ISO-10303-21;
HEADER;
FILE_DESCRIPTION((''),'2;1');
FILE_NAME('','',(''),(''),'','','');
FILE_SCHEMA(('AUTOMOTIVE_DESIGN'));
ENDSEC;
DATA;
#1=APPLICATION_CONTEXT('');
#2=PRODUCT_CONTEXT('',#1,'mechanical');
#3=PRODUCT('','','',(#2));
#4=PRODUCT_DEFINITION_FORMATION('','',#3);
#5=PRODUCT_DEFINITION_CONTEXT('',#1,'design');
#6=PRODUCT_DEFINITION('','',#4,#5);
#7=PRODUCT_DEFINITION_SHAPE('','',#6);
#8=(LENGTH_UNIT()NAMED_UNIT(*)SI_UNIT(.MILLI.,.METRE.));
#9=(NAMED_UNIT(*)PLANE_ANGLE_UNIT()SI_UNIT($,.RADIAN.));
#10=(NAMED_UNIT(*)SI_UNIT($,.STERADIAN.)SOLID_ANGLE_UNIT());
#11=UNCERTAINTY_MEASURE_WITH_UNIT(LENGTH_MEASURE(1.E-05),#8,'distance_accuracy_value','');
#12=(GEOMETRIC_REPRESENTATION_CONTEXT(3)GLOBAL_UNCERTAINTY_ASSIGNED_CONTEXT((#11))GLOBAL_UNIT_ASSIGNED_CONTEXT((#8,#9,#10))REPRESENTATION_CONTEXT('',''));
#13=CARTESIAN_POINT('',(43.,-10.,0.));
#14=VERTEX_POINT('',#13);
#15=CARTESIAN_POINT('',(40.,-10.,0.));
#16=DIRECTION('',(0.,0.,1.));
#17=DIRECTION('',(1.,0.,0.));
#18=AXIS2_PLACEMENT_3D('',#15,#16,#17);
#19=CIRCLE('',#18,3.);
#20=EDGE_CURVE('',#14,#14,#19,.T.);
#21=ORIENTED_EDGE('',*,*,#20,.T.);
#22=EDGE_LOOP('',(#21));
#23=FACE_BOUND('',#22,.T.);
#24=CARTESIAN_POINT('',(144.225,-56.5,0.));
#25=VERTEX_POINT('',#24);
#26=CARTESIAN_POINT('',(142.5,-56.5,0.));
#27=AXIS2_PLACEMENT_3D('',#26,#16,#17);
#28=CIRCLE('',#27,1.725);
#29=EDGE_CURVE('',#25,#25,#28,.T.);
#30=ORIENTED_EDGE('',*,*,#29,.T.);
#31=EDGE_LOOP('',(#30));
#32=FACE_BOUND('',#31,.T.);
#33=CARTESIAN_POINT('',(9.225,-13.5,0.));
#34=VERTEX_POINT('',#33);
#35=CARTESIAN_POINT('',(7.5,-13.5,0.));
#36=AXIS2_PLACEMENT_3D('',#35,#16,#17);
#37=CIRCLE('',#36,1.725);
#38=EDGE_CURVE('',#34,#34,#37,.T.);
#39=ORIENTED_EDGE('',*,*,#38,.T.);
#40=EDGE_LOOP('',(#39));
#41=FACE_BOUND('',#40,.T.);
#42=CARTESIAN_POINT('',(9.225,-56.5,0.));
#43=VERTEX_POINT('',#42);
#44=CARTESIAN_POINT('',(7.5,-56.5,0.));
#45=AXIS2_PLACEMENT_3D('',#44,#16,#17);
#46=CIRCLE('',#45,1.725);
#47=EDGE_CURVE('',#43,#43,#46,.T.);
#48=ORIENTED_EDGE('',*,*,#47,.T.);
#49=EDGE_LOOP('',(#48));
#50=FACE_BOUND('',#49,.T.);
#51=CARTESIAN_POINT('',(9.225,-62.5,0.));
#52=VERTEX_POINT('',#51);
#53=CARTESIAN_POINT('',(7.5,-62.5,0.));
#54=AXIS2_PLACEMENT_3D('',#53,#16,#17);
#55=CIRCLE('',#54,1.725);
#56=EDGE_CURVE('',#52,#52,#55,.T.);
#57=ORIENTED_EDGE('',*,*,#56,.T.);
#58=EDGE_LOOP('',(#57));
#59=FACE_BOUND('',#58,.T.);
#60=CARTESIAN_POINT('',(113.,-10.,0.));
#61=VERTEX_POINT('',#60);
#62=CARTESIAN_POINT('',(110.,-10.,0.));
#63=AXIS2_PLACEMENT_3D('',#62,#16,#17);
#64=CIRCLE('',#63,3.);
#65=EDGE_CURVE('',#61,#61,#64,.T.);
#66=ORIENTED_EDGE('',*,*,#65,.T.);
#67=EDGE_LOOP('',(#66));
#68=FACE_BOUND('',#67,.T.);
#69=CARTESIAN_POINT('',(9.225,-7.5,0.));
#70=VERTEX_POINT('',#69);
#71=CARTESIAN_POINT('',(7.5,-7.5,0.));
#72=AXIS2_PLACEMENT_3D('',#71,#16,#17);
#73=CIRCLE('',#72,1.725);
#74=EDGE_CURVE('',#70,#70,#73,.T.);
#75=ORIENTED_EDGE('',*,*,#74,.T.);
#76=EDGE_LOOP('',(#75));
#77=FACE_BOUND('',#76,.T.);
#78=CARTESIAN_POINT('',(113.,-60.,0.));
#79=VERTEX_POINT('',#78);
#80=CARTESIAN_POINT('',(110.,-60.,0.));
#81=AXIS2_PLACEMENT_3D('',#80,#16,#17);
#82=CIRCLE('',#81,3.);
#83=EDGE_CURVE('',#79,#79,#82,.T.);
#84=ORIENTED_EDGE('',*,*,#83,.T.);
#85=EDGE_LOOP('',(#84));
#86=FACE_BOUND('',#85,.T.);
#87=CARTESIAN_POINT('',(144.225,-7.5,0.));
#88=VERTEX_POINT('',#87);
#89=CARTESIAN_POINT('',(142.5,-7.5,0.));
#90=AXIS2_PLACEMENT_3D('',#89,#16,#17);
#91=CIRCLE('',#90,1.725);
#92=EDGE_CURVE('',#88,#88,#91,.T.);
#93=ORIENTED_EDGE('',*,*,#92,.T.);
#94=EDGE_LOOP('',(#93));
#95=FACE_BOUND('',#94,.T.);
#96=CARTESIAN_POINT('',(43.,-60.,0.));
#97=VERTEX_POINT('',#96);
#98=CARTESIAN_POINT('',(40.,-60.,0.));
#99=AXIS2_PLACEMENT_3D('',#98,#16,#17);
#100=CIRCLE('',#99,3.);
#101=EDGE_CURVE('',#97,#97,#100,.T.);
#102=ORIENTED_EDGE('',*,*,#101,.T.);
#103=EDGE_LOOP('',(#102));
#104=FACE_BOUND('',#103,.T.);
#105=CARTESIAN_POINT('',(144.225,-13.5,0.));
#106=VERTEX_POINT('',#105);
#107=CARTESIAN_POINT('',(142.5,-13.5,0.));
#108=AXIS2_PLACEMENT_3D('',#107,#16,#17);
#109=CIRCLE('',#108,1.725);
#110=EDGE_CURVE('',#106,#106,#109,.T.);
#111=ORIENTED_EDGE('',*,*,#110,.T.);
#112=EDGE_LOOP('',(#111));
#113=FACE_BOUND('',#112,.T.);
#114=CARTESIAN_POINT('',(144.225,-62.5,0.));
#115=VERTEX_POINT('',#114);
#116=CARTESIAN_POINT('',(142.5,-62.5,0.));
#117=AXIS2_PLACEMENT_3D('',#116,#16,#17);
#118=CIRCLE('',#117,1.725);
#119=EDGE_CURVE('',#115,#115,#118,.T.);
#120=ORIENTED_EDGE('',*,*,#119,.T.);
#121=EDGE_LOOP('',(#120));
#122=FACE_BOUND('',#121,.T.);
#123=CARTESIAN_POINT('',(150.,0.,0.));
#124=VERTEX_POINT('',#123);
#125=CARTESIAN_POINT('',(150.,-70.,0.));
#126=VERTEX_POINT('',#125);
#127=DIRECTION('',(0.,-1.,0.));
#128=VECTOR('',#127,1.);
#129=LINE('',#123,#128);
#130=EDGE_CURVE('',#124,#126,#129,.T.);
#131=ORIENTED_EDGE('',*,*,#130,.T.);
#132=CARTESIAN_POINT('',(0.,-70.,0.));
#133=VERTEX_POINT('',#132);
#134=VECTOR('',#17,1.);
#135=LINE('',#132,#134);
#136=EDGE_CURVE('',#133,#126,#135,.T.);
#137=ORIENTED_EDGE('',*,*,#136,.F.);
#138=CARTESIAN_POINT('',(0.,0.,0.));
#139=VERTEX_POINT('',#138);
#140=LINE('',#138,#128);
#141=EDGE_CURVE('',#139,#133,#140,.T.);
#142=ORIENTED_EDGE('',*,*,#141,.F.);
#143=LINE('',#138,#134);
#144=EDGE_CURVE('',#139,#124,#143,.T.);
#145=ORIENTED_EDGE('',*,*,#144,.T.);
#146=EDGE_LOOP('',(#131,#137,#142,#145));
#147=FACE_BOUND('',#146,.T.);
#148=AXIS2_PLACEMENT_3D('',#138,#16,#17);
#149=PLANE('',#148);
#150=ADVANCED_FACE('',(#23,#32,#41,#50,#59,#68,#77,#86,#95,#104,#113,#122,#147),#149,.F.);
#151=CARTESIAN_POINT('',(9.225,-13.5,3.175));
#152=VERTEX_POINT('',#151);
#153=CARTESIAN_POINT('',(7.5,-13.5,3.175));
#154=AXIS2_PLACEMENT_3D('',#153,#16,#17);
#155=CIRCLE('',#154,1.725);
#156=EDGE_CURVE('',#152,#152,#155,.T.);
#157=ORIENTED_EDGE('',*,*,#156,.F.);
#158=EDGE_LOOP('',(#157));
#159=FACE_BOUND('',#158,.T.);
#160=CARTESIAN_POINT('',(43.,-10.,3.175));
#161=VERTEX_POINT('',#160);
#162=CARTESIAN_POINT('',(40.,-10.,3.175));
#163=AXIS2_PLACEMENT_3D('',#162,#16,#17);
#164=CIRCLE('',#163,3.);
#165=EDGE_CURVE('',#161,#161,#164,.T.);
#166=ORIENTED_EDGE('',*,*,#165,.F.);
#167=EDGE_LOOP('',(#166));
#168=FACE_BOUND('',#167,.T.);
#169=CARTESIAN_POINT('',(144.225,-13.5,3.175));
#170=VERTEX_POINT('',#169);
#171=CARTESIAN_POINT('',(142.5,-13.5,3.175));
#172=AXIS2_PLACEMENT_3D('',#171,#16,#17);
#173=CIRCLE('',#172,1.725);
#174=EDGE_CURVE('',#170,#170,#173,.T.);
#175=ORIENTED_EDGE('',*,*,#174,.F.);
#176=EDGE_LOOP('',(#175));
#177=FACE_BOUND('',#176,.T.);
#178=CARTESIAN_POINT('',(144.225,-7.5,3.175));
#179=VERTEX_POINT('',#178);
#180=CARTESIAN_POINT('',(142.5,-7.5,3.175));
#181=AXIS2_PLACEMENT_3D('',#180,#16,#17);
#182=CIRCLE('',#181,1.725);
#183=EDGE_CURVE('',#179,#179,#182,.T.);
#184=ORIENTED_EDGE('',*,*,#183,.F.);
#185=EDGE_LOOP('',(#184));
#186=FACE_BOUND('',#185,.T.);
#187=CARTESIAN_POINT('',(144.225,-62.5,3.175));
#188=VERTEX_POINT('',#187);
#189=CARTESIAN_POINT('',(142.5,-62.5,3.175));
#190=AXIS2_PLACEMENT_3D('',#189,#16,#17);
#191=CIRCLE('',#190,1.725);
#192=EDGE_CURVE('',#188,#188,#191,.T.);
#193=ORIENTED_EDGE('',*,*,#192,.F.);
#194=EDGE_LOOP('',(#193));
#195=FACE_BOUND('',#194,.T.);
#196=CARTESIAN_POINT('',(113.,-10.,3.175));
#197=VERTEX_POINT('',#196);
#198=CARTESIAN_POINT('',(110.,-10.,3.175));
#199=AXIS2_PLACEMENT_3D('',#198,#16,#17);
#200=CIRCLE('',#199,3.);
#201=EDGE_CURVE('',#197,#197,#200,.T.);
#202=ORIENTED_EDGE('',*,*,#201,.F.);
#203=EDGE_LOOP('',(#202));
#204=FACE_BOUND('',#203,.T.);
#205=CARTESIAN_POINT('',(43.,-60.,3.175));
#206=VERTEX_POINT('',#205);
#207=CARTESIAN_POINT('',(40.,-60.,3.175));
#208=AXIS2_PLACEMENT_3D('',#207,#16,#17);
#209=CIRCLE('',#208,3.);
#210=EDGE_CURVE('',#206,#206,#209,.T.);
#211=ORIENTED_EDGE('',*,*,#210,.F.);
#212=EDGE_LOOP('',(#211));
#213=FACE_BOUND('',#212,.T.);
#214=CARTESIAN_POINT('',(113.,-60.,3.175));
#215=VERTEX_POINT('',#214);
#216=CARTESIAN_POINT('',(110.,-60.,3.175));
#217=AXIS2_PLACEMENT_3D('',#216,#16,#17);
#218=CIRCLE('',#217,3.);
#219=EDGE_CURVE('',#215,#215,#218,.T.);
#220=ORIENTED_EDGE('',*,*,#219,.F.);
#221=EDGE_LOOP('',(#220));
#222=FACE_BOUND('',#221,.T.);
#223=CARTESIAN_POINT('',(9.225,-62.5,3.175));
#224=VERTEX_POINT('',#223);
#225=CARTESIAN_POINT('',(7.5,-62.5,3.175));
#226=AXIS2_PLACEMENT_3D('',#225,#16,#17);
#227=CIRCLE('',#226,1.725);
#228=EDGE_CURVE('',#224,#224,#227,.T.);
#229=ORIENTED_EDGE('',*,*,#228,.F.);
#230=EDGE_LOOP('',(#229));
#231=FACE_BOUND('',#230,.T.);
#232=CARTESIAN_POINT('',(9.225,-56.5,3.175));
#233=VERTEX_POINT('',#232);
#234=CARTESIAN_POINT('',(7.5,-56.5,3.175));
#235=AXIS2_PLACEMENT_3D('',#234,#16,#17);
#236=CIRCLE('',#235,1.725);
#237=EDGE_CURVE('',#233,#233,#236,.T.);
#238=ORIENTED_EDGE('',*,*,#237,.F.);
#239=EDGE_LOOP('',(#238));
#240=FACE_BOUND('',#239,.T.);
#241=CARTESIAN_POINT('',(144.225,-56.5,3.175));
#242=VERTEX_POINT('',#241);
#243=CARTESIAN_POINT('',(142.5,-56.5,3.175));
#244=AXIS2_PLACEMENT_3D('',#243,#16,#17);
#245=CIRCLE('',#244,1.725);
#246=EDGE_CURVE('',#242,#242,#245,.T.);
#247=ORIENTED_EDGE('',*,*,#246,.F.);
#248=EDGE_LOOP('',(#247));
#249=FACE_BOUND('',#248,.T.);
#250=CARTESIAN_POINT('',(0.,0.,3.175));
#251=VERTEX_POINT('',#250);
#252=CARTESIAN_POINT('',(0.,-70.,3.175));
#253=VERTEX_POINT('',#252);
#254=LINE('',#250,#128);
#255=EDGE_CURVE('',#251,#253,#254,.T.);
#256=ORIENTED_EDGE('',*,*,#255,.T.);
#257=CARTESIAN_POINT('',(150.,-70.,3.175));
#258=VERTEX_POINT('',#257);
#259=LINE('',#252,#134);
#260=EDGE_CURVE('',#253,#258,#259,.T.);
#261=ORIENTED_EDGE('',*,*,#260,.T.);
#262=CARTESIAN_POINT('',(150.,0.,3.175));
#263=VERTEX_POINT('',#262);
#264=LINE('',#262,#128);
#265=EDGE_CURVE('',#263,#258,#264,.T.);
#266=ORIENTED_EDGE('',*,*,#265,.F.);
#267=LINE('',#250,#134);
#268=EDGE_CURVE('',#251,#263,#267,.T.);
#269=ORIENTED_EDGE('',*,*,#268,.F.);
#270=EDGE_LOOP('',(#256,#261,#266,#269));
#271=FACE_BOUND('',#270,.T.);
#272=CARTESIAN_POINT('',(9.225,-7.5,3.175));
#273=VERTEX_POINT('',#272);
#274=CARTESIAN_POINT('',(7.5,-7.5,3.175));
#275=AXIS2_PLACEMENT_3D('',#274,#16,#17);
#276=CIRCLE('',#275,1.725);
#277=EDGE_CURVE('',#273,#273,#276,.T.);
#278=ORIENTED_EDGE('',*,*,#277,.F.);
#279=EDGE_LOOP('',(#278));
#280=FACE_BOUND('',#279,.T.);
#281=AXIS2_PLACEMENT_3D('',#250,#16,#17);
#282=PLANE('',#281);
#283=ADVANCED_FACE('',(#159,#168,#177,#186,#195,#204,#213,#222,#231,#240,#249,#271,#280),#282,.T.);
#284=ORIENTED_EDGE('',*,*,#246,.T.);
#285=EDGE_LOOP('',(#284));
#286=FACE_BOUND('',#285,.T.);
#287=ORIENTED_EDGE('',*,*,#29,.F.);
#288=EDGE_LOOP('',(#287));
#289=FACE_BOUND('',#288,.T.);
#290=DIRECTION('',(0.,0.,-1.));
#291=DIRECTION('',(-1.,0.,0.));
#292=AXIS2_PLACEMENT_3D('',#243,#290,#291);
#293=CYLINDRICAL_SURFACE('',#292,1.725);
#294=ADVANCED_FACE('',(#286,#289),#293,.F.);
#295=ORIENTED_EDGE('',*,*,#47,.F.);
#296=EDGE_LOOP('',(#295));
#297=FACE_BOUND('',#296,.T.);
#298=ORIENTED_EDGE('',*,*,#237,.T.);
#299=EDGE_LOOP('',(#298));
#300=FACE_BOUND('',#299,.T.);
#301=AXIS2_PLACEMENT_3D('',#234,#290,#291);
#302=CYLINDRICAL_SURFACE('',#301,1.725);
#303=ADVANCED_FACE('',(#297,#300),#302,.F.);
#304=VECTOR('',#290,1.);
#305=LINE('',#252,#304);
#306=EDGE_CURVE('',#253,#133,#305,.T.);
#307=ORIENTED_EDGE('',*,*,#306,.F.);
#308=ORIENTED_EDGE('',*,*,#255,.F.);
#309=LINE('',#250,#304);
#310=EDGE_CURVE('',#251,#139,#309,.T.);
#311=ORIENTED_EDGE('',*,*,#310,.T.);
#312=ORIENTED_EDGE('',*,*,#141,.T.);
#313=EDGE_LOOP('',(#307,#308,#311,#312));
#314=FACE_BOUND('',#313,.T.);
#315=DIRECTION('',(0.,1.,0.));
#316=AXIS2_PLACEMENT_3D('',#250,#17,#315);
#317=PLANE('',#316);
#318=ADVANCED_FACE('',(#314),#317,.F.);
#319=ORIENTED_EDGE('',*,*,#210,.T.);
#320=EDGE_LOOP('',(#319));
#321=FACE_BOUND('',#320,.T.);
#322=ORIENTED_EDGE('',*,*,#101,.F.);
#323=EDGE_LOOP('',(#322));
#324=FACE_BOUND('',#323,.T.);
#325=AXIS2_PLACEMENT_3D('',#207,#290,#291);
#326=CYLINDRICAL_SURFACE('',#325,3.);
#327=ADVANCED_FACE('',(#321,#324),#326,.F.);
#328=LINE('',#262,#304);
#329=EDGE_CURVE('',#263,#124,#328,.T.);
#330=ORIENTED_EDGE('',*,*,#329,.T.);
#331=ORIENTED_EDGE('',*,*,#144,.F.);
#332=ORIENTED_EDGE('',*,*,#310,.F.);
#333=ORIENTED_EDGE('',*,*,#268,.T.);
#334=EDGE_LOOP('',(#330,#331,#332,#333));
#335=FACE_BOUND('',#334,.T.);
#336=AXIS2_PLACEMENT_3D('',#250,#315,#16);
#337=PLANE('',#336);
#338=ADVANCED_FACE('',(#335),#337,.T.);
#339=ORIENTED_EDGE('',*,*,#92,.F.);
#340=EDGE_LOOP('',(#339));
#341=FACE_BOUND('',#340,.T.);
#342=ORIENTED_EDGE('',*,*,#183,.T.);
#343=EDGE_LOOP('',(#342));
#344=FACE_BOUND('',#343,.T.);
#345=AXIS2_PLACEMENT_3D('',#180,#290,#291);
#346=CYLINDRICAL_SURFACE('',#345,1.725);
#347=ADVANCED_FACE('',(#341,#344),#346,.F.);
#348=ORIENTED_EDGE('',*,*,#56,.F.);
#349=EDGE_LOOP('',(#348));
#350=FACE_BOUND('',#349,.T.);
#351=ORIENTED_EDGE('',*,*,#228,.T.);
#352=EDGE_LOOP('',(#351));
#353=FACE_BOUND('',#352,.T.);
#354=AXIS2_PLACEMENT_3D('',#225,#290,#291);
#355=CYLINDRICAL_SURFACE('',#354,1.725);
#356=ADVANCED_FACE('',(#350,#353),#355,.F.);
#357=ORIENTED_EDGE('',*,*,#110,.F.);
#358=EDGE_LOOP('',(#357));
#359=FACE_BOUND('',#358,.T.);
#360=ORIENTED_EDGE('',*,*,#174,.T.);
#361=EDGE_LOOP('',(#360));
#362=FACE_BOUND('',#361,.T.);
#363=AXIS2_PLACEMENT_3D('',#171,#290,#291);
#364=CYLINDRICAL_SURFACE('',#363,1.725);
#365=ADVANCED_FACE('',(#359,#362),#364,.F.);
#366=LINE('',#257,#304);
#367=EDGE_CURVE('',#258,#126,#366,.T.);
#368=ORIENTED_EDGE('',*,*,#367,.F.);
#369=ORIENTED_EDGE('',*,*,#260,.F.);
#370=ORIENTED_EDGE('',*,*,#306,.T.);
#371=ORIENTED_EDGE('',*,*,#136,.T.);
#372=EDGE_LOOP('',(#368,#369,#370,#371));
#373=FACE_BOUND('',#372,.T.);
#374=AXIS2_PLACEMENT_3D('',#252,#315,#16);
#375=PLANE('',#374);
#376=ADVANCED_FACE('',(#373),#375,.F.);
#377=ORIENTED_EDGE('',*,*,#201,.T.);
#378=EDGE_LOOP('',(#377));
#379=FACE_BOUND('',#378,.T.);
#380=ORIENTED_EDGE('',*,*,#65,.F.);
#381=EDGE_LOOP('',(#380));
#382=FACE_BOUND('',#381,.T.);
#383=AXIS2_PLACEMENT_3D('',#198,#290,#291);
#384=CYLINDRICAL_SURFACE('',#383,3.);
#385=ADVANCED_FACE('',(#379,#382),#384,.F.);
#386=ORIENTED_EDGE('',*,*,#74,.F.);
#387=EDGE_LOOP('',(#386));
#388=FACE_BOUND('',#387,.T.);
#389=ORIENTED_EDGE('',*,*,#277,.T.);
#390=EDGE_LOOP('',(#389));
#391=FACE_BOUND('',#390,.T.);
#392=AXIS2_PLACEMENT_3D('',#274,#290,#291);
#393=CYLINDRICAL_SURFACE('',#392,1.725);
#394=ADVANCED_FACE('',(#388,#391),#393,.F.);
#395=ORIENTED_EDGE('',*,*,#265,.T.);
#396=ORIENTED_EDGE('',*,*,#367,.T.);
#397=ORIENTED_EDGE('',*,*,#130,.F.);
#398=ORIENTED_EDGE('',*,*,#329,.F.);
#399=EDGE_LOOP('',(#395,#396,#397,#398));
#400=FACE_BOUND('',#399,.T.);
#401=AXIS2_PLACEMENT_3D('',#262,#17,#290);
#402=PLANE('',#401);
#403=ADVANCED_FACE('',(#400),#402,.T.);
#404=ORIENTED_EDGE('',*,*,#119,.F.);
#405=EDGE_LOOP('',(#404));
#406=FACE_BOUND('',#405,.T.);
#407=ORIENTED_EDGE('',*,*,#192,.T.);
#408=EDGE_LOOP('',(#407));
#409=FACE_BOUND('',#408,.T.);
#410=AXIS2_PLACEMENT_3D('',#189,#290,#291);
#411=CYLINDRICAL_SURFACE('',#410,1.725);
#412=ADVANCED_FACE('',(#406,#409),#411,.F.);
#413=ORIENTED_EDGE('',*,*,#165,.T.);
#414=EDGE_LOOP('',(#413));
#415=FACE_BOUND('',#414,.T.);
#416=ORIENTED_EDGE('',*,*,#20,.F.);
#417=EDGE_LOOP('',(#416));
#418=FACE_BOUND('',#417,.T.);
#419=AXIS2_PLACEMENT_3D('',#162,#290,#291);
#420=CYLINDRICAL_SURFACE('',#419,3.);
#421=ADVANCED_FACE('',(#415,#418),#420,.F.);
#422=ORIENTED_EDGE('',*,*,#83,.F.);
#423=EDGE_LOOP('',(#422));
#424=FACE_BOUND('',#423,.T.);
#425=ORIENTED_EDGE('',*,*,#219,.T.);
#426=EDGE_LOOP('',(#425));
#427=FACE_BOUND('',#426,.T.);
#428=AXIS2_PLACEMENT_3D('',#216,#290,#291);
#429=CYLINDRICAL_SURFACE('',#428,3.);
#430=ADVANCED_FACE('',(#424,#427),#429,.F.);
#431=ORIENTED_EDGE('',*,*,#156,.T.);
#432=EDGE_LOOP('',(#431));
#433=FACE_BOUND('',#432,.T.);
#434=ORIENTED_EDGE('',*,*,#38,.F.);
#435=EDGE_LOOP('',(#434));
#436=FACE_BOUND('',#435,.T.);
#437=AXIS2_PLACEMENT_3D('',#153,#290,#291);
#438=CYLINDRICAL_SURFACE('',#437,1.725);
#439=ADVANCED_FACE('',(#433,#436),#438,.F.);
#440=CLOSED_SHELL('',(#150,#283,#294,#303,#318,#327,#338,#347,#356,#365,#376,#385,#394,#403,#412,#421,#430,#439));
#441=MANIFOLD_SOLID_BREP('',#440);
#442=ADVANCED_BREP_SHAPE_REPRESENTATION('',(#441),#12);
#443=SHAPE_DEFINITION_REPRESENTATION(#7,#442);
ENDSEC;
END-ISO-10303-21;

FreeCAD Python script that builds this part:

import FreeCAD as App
import Part
import Sketcher

V = App.Vector
Q = App.Units.Quantity

doc = App.newDocument("Part")
body = doc.addObject("PartDesign::Body", "Body")

# Sketch on XY plane
sketch1 = body.newObject("Sketcher::SketchObject", "Sketch")
sketch1.AttachmentSupport = (doc.getObject("XY_Plane"), [""])
sketch1.MapMode = "FlatFace"
sketch1.addGeometry([
    Part.LineSegment(V(0, 0, 0), V(0, -70, 0)),  # 0
    Part.LineSegment(V(0, -70, 0), V(150, -70, 0)),  # 1
    Part.LineSegment(V(150, -70, 0), V(150, 0, 0)),  # 2
    Part.LineSegment(V(150, 0, 0), V(0, 0, 0)),  # 3
    Part.Circle(V(7.5, -62.5, 0), V(0, 0, 1), 1.7),  # 4
    Part.Circle(V(40, -60, 0), V(0, 0, 1), 3),  # 5
    Part.Circle(V(7.5, -56.5, 0), V(0, 0, 1), 1.7),  # 6
    Part.Circle(V(110, -60, 0), V(0, 0, 1), 3),  # 7
    Part.Circle(V(142.5, -62.5, 0), V(0, 0, 1), 1.7),  # 8
    Part.Circle(V(142.5, -56.5, 0), V(0, 0, 1), 1.7),  # 9
    Part.Circle(V(7.5, -13.5, 0), V(0, 0, 1), 1.7),  # 10
    Part.Circle(V(7.5, -7.5, 0), V(0, 0, 1), 1.7),  # 11
    Part.Circle(V(40, -10, 0), V(0, 0, 1), 3),  # 12
    Part.Circle(V(142.5, -13.5, 0), V(0, 0, 1), 1.7),  # 13
    Part.Circle(V(110, -10, 0), V(0, 0, 1), 3),  # 14
    Part.Circle(V(142.5, -7.5, 0), V(0, 0, 1), 1.7),  # 15
], False)
sketch1.addConstraint([
    Sketcher.Constraint("Coincident", 0, 2, 1, 1),
    Sketcher.Constraint("Coincident", 1, 2, 2, 1),
    Sketcher.Constraint("Coincident", 2, 2, 3, 1),
    Sketcher.Constraint("Coincident", 3, 2, 0, 1),
    Sketcher.Constraint("Vertical", 0),
    Sketcher.Constraint("Horizontal", 1),
    Sketcher.Constraint("Vertical", 2),
    Sketcher.Constraint("Horizontal", 3),
    Sketcher.Constraint("Coincident", 3, 2, -1, 1),
    Sketcher.Constraint("Equal", 4, 6),
    Sketcher.Constraint("Equal", 5, 7),
    Sketcher.Constraint("Equal", 6, 8),
    Sketcher.Constraint("Equal", 8, 9),
    Sketcher.Constraint("Equal", 9, 10),
    Sketcher.Constraint("Equal", 10, 11),
    Sketcher.Constraint("Equal", 7, 12),
    Sketcher.Constraint("Equal", 11, 13),
    Sketcher.Constraint("Equal", 12, 14),
    Sketcher.Constraint("Equal", 13, 15),
    Sketcher.Constraint("Horizontal", 5, 3, 7, 3),
    Sketcher.Constraint("Horizontal", 4, 3, 8, 3),
    Sketcher.Constraint("Horizontal", 6, 3, 9, 3),
    Sketcher.Constraint("Horizontal", 10, 3, 13, 3),
    Sketcher.Constraint("Horizontal", 12, 3, 14, 3),
    Sketcher.Constraint("Horizontal", 11, 3, 15, 3),
    Sketcher.Constraint("Vertical", 4, 3, 6, 3),
    Sketcher.Constraint("Vertical", 8, 3, 9, 3),
    Sketcher.Constraint("Vertical", 6, 3, 10, 3),
    Sketcher.Constraint("Vertical", 10, 3, 11, 3),
    Sketcher.Constraint("Vertical", 5, 3, 12, 3),
    Sketcher.Constraint("Vertical", 9, 3, 13, 3),
    Sketcher.Constraint("Vertical", 7, 3, 14, 3),
    Sketcher.Constraint("Vertical", 13, 3, 15, 3),
    Sketcher.Constraint("Diameter", 5, Q("6 mm")),
    Sketcher.Constraint("Diameter", 4, Q("3.45 mm")),
    Sketcher.Constraint("DistanceX", 1, 1, 1, 2, Q("150 mm")),
    Sketcher.Constraint("DistanceY", 0, 2, 0, 1, Q("70 mm")),
    Sketcher.Constraint("DistanceX", -1, 1, 5, 3, Q("40 mm")),
    Sketcher.Constraint("DistanceY", 5, 3, -1, 1, Q("60 mm")),
    Sketcher.Constraint("DistanceX", -1, 1, 7, 3, Q("110 mm")),
    Sketcher.Constraint("DistanceY", 12, 3, -1, 1, Q("10 mm")),
    Sketcher.Constraint("DistanceY", 4, 3, 6, 3, Q("6 mm")),
    Sketcher.Constraint("DistanceX", 4, 3, 8, 3, Q("135 mm")),
    Sketcher.Constraint("DistanceY", 6, 3, 10, 3, Q("43 mm")),
    Sketcher.Constraint("DistanceY", 10, 3, 11, 3, Q("6 mm")),
    Sketcher.Constraint("DistanceX", -1, 1, 4, 3, Q("7.5 mm")),
    Sketcher.Constraint("DistanceY", 4, 3, -1, 1, Q("62.5 mm")),
])
pad1 = body.newObject("PartDesign::Pad", "Pad")
pad1.Profile = sketch1
pad1.Length = 3.175

doc.recompute()
